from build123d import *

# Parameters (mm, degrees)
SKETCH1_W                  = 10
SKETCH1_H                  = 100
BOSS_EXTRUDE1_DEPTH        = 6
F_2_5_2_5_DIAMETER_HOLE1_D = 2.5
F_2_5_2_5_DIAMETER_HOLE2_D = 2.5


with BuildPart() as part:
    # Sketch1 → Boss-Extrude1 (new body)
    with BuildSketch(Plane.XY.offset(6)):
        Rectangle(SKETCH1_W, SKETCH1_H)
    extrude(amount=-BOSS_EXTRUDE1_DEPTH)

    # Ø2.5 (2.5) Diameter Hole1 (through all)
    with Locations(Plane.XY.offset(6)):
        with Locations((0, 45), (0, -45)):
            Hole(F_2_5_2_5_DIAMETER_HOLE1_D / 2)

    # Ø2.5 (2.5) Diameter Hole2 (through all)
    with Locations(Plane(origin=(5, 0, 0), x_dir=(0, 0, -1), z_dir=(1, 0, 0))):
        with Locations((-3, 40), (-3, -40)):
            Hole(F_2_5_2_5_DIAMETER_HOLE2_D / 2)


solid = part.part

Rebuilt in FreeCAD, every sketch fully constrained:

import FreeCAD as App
import Part
import Sketcher
from FreeCAD import Vector

doc = App.newDocument("Part")
body = doc.addObject("PartDesign::Body", "Body")

# Sketch on XY plane
sketch1 = body.newObject("Sketcher::SketchObject", "Sketch")
sketch1.AttachmentSupport = (doc.getObject("XY_Plane"), [""])
sketch1.MapMode = "FlatFace"
sketch1.AttachmentOffset = App.Placement(Vector(0, 0, 6), App.Rotation())
sketch1.addGeometry(Part.LineSegment(Vector(-5, 50, 0), Vector(-5, -50, 0)), False)
sketch1.addGeometry(Part.LineSegment(Vector(-5, -50, 0), Vector(5, -50, 0)), False)
sketch1.addGeometry(Part.LineSegment(Vector(5, -50, 0), Vector(5, 50, 0)), False)
sketch1.addGeometry(Part.LineSegment(Vector(5, 50, 0), Vector(-5, 50, 0)), False)
sketch1.addConstraint(Sketcher.Constraint("Coincident", 0, 2, 1, 1))
sketch1.addConstraint(Sketcher.Constraint("Coincident", 1, 2, 2, 1))
sketch1.addConstraint(Sketcher.Constraint("Coincident", 2, 2, 3, 1))
sketch1.addConstraint(Sketcher.Constraint("Coincident", 3, 2, 0, 1))
sketch1.addConstraint(Sketcher.Constraint("Vertical", 0))
sketch1.addConstraint(Sketcher.Constraint("Horizontal", 1))
sketch1.addConstraint(Sketcher.Constraint("Vertical", 2))
sketch1.addConstraint(Sketcher.Constraint("Horizontal", 3))
sketch1.addConstraint(Sketcher.Constraint("Symmetric", 0, 2, 2, 2, -1, 1))
sketch1.addConstraint(Sketcher.Constraint("DistanceX", 1, 1, 1, 2, 10.0))
sketch1.addConstraint(Sketcher.Constraint("DistanceY", 0, 2, 0, 1, 100.0))
pad1 = body.newObject("PartDesign::Pad", "Pad")
pad1.Profile = sketch1
pad1.Length = 6
pad1.Reversed = True

# Sketch on XY plane
sketch2 = body.newObject("Sketcher::SketchObject", "Sketch001")
sketch2.AttachmentSupport = (doc.getObject("XY_Plane"), [""])
sketch2.MapMode = "FlatFace"
sketch2.AttachmentOffset = App.Placement(Vector(0, 0, 6), App.Rotation())
sketch2.addGeometry(Part.Circle(Vector(0, 45, 0), Vector(0, 0, 1), 1.2), False)
sketch2.addGeometry(Part.Circle(Vector(0, -45, 0), Vector(0, 0, 1), 1.2), False)
sketch2.addConstraint(Sketcher.Constraint("Equal", 0, 1))
sketch2.addConstraint(Sketcher.Constraint("Symmetric", 0, 3, 1, 3, -1, 1))
sketch2.addConstraint(Sketcher.Constraint("PointOnObject", 0, 3, -2))
sketch2.addConstraint(Sketcher.Constraint("Diameter", 0, 2.5))
sketch2.addConstraint(Sketcher.Constraint("DistanceY", -1, 1, 0, 3, 45.0))
doc.recompute()
hole = body.newObject("PartDesign::Hole", "Hole")
hole.Profile = sketch2
hole.ThreadType = "None"
hole.Diameter = 2.5
hole.DepthType = "ThroughAll"

# Sketch on YZ plane
sketch3 = body.newObject("Sketcher::SketchObject", "Sketch002")
sketch3.AttachmentSupport = (doc.getObject("YZ_Plane"), [""])
sketch3.MapMode = "FlatFace"
sketch3.AttachmentOffset = App.Placement(Vector(0, 0, 5), App.Rotation())
sketch3.addGeometry(Part.Circle(Vector(40, 3, 0), Vector(0, 0, 1), 1.2), False)
sketch3.addGeometry(Part.Circle(Vector(-40, 3, 0), Vector(0, 0, 1), 1.2), False)
sketch3.addConstraint(Sketcher.Constraint("Equal", 0, 1))
sketch3.addConstraint(Sketcher.Constraint("Symmetric", 0, 3, 1, 3, -2))
sketch3.addConstraint(Sketcher.Constraint("Diameter", 0, 2.5))
sketch3.addConstraint(Sketcher.Constraint("DistanceX", -1, 1, 0, 3, 40.0))
sketch3.addConstraint(Sketcher.Constraint("DistanceY", -1, 1, 0, 3, 3.0))
doc.recompute()
hole2 = body.newObject("PartDesign::Hole", "Hole001")
hole2.Profile = sketch3
hole2.ThreadType = "None"
hole2.Diameter = 2.5
hole2.DepthType = "ThroughAll"

doc.recompute()
